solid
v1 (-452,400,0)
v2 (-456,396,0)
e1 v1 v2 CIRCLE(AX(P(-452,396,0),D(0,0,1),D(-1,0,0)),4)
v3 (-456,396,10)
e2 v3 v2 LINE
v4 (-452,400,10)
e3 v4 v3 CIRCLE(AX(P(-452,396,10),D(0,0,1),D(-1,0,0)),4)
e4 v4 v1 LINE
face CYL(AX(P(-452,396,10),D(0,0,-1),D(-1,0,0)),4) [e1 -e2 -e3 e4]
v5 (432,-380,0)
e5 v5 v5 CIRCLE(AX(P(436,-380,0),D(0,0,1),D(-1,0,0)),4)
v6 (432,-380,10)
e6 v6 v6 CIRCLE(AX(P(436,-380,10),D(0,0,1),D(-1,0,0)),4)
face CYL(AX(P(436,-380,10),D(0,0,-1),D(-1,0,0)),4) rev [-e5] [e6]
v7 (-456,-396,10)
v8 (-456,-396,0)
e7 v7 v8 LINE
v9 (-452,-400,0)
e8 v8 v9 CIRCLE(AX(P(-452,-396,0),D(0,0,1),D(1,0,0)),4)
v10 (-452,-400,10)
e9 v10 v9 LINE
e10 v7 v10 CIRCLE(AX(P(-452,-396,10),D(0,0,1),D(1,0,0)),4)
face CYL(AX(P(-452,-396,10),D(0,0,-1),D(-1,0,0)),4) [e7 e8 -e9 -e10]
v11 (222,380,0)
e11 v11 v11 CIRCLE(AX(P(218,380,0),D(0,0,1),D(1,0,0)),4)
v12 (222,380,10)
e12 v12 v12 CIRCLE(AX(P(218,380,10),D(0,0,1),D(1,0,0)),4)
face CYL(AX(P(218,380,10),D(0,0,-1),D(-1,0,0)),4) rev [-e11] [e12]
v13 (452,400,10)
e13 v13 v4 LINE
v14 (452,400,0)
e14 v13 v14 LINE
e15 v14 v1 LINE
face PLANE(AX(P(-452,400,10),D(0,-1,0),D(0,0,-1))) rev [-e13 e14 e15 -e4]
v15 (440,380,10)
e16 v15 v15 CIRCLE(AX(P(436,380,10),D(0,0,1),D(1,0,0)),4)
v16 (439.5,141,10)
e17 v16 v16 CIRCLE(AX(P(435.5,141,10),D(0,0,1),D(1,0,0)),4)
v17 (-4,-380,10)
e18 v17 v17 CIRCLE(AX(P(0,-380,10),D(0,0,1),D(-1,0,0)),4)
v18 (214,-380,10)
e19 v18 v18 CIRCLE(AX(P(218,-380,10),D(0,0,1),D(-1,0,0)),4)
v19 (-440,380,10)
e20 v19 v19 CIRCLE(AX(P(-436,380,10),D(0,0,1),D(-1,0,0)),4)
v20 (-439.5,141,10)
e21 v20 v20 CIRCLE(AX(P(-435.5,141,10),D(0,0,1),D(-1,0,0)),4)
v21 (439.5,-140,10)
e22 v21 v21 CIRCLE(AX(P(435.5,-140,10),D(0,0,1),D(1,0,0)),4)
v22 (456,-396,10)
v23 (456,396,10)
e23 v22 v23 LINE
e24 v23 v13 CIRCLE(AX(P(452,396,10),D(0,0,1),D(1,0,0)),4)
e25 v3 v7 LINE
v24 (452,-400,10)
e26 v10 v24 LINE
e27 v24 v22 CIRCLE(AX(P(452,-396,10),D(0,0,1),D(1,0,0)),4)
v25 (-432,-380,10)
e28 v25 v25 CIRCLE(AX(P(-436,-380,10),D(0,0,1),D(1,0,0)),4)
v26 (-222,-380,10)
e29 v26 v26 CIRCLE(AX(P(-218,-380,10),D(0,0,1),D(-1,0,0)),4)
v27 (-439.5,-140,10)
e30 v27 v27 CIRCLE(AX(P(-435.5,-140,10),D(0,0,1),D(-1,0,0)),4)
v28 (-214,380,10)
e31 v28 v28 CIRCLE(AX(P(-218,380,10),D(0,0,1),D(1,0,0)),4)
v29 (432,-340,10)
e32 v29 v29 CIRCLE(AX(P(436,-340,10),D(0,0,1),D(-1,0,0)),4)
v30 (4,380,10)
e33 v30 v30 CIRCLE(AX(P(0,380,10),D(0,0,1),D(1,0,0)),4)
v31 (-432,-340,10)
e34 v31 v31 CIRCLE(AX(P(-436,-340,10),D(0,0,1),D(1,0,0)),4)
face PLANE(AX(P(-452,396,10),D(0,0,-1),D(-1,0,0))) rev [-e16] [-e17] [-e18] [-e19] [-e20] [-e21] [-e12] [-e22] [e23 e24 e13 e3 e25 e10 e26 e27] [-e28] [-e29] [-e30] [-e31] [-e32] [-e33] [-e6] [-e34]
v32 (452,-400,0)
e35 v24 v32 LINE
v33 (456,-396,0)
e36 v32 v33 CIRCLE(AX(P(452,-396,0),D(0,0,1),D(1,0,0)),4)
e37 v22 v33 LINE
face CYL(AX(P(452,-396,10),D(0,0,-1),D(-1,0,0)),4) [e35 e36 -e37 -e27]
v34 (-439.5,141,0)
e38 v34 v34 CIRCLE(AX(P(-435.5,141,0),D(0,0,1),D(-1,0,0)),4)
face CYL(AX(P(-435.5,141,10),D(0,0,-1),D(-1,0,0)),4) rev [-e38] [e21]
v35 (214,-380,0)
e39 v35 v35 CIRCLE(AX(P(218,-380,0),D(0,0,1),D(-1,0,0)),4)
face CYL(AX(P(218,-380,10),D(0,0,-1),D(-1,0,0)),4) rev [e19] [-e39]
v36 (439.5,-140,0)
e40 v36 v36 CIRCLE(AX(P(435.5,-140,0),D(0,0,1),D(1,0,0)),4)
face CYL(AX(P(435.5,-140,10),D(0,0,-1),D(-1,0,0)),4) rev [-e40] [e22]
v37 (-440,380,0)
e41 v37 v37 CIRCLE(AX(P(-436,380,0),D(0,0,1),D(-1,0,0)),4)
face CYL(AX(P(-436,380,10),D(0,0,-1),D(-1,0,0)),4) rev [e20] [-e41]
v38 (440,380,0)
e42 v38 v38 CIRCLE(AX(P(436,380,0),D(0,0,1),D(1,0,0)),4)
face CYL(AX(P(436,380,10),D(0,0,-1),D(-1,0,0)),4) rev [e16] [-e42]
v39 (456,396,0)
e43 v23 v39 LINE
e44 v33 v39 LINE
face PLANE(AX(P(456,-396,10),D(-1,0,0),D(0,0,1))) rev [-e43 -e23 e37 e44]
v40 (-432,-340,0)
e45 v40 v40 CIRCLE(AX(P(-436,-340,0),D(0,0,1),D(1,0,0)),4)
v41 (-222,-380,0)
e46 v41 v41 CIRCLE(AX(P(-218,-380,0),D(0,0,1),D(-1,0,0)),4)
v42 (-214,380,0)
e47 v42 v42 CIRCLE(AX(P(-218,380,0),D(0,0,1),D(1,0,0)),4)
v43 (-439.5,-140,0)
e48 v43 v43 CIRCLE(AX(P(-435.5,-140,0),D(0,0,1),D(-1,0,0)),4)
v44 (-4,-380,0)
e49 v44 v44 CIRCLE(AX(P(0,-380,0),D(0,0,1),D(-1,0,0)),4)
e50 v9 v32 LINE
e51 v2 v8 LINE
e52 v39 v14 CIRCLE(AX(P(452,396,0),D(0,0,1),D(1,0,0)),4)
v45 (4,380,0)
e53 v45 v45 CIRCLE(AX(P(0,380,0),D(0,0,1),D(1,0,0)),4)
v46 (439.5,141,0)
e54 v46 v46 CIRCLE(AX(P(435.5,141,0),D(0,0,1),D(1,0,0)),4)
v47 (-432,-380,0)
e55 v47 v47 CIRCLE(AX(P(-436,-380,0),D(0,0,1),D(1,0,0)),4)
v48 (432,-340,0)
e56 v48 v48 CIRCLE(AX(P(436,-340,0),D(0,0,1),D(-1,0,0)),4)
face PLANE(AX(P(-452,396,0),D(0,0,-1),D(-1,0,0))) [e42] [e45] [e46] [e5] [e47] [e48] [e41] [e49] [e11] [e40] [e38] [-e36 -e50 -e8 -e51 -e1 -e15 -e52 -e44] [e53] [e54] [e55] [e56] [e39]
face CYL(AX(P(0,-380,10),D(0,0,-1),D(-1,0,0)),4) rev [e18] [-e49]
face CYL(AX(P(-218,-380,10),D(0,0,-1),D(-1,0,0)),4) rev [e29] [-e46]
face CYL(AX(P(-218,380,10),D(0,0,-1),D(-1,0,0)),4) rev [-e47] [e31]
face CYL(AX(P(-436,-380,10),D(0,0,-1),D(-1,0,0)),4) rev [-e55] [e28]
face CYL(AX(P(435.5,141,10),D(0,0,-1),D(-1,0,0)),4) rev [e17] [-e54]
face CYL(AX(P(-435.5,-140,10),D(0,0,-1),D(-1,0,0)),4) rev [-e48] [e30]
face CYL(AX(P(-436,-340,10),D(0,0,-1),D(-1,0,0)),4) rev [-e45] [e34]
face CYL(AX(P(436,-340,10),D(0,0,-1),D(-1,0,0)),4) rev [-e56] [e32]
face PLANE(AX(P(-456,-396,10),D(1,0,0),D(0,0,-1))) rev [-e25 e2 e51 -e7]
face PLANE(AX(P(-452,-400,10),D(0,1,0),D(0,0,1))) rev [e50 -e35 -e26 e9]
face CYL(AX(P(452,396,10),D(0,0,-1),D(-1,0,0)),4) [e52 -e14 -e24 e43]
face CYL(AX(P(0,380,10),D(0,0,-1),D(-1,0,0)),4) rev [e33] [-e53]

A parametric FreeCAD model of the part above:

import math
import FreeCAD as App
import Part
import Sketcher

doc = App.newDocument("Part")
body = doc.addObject("PartDesign::Body", "Body")

sketch1 = body.newObject("Sketcher::SketchObject", "Sketch")
sketch1.AttachmentSupport = (doc.getObject("XY_Plane"), [""])
sketch1.MapMode = "FlatFace"
sketch1.addGeometry([
    Part.LineSegment(App.Vector(-452, -400, 0), App.Vector(452, -400, 0)),
    Part.ArcOfCircle(Part.Circle(App.Vector(452, -396, 0), App.Vector(0, 0, 1), 4), math.radians(-90), math.radians(0)),
    Part.LineSegment(App.Vector(456, -396, 0), App.Vector(456, 396, 0)),
    Part.ArcOfCircle(Part.Circle(App.Vector(452, 396, 0), App.Vector(0, 0, 1), 4), math.radians(0), math.radians(90)),
    Part.LineSegment(App.Vector(452, 400, 0), App.Vector(-452, 400, 0)),
    Part.ArcOfCircle(Part.Circle(App.Vector(-452, 396, 0), App.Vector(0, 0, 1), 4), math.radians(90), math.radians(180)),
    Part.LineSegment(App.Vector(-456, 396, 0), App.Vector(-456, -396, 0)),
    Part.ArcOfCircle(Part.Circle(App.Vector(-452, -396, 0), App.Vector(0, 0, 1), 4), math.radians(180), math.radians(270)),
    Part.Circle(App.Vector(-436, -380, 0), App.Vector(0, 0, 1), 4),
    Part.Circle(App.Vector(-436, -340, 0), App.Vector(0, 0, 1), 4),
    Part.Circle(App.Vector(-218, -380, 0), App.Vector(0, 0, 1), 4),
    Part.Circle(App.Vector(-435.5, -140, 0), App.Vector(0, 0, 1), 4),
    Part.Circle(App.Vector(0, -380, 0), App.Vector(0, 0, 1), 4),
    Part.Circle(App.Vector(218, -380, 0), App.Vector(0, 0, 1), 4),
    Part.Circle(App.Vector(436, -380, 0), App.Vector(0, 0, 1), 4),
    Part.Circle(App.Vector(436, -340, 0), App.Vector(0, 0, 1), 4),
    Part.Circle(App.Vector(435.5, -140, 0), App.Vector(0, 0, 1), 4),
    Part.Circle(App.Vector(-435.5, 141, 0), App.Vector(0, 0, 1), 4),
    Part.Circle(App.Vector(-436, 380, 0), App.Vector(0, 0, 1), 4),
    Part.Circle(App.Vector(-218, 380, 0), App.Vector(0, 0, 1), 4),
    Part.Circle(App.Vector(435.5, 141, 0), App.Vector(0, 0, 1), 4),
    Part.Circle(App.Vector(0, 380, 0), App.Vector(0, 0, 1), 4),
    Part.Circle(App.Vector(218, 380, 0), App.Vector(0, 0, 1), 4),
    Part.Circle(App.Vector(436, 380, 0), App.Vector(0, 0, 1), 4),
], False)
sketch1.addConstraint([
    Sketcher.Constraint("Tangent", 0, 2, 1, 1),
    Sketcher.Constraint("Tangent", 1, 2, 2, 1),
    Sketcher.Constraint("Tangent", 2, 2, 3, 1),
    Sketcher.Constraint("Tangent", 3, 2, 4, 1),
    Sketcher.Constraint("Tangent", 4, 2, 5, 1),
    Sketcher.Constraint("Tangent", 5, 2, 6, 1),
    Sketcher.Constraint("Tangent", 6, 2, 7, 1),
    Sketcher.Constraint("Tangent", 7, 2, 0, 1),
    Sketcher.Constraint("Horizontal", 0),
    Sketcher.Constraint("Vertical", 2),
    Sketcher.Constraint("Horizontal", 4),
    Sketcher.Constraint("Vertical", 6),
    Sketcher.Constraint("Equal", 1, 3),
    Sketcher.Constraint("Equal", 3, 5),
    Sketcher.Constraint("Equal", 5, 7),
    Sketcher.Constraint("Equal", 7, 8),
    Sketcher.Constraint("Equal", 8, 9),
    Sketcher.Constraint("Equal", 9, 10),
    Sketcher.Constraint("Equal", 10, 11),
    Sketcher.Constraint("Equal", 11, 12),
    Sketcher.Constraint("Equal", 12, 13),
    Sketcher.Constraint("Equal", 13, 14),
    Sketcher.Constraint("Equal", 14, 15),
    Sketcher.Constraint("Equal", 15, 16),
    Sketcher.Constraint("Equal", 16, 17),
    Sketcher.Constraint("Equal", 17, 18),
    Sketcher.Constraint("Equal", 18, 19),
    Sketcher.Constraint("Equal", 19, 20),
    Sketcher.Constraint("Equal", 20, 21),
    Sketcher.Constraint("Equal", 21, 22),
    Sketcher.Constraint("Equal", 22, 23),
    Sketcher.Constraint("Symmetric", 1, 3, 5, 3, -1, 1),
    Sketcher.Constraint("Symmetric", 14, 3, 18, 3, -1, 1),
    Sketcher.Constraint("Symmetric", 13, 3, 19, 3, -1, 1),
    Sketcher.Constraint("Symmetric", 12, 3, 21, 3, -1, 1),
    Sketcher.Constraint("Symmetric", 10, 3, 22, 3, -1, 1),
    Sketcher.Constraint("Symmetric", 8, 3, 23, 3, -1, 1),
    Sketcher.Constraint("Symmetric", 10, 3, 13, 3, -2),
    Sketcher.Constraint("Symmetric", 8, 3, 14, 3, -2),
    Sketcher.Constraint("Symmetric", 9, 3, 15, 3, -2),
    Sketcher.Constraint("Symmetric", 11, 3, 16, 3, -2),
    Sketcher.Constraint("Symmetric", 17, 3, 20, 3, -2),
    Sketcher.Constraint("PointOnObject", 12, 3, -2),
    Sketcher.Constraint("Horizontal", 8, 3, 10, 3),
    Sketcher.Constraint("Horizontal", 10, 3, 12, 3),
    Sketcher.Constraint("Vertical", 8, 3, 9, 3),
    Sketcher.Constraint("Vertical", 11, 3, 17, 3),
    Sketcher.Constraint("Diameter", 8, 8.0),
    Sketcher.Constraint("DistanceX", 0, 1, 0, 2, 904.0),
    Sketcher.Constraint("DistanceY", 2, 1, 2, 2, 792.0),
    Sketcher.Constraint("DistanceX", 8, 3, -1, 1, 436.0),
    Sketcher.Constraint("DistanceY", 8, 3, -1, 1, 380.0),
    Sketcher.Constraint("DistanceY", 9, 3, -1, 1, 340.0),
    Sketcher.Constraint("DistanceX", 10, 3, -1, 1, 218.0),
    Sketcher.Constraint("DistanceY", 11, 3, -1, 1, 140.0),
    Sketcher.Constraint("DistanceY", -1, 1, 17, 3, 141.0),
    Sketcher.Constraint("DistanceX", 11, 3, -1, 1, 435.5),
])
pad1 = body.newObject("PartDesign::Pad", "Pad")
pad1.Profile = sketch1
pad1.Length = 10

doc.recompute()
